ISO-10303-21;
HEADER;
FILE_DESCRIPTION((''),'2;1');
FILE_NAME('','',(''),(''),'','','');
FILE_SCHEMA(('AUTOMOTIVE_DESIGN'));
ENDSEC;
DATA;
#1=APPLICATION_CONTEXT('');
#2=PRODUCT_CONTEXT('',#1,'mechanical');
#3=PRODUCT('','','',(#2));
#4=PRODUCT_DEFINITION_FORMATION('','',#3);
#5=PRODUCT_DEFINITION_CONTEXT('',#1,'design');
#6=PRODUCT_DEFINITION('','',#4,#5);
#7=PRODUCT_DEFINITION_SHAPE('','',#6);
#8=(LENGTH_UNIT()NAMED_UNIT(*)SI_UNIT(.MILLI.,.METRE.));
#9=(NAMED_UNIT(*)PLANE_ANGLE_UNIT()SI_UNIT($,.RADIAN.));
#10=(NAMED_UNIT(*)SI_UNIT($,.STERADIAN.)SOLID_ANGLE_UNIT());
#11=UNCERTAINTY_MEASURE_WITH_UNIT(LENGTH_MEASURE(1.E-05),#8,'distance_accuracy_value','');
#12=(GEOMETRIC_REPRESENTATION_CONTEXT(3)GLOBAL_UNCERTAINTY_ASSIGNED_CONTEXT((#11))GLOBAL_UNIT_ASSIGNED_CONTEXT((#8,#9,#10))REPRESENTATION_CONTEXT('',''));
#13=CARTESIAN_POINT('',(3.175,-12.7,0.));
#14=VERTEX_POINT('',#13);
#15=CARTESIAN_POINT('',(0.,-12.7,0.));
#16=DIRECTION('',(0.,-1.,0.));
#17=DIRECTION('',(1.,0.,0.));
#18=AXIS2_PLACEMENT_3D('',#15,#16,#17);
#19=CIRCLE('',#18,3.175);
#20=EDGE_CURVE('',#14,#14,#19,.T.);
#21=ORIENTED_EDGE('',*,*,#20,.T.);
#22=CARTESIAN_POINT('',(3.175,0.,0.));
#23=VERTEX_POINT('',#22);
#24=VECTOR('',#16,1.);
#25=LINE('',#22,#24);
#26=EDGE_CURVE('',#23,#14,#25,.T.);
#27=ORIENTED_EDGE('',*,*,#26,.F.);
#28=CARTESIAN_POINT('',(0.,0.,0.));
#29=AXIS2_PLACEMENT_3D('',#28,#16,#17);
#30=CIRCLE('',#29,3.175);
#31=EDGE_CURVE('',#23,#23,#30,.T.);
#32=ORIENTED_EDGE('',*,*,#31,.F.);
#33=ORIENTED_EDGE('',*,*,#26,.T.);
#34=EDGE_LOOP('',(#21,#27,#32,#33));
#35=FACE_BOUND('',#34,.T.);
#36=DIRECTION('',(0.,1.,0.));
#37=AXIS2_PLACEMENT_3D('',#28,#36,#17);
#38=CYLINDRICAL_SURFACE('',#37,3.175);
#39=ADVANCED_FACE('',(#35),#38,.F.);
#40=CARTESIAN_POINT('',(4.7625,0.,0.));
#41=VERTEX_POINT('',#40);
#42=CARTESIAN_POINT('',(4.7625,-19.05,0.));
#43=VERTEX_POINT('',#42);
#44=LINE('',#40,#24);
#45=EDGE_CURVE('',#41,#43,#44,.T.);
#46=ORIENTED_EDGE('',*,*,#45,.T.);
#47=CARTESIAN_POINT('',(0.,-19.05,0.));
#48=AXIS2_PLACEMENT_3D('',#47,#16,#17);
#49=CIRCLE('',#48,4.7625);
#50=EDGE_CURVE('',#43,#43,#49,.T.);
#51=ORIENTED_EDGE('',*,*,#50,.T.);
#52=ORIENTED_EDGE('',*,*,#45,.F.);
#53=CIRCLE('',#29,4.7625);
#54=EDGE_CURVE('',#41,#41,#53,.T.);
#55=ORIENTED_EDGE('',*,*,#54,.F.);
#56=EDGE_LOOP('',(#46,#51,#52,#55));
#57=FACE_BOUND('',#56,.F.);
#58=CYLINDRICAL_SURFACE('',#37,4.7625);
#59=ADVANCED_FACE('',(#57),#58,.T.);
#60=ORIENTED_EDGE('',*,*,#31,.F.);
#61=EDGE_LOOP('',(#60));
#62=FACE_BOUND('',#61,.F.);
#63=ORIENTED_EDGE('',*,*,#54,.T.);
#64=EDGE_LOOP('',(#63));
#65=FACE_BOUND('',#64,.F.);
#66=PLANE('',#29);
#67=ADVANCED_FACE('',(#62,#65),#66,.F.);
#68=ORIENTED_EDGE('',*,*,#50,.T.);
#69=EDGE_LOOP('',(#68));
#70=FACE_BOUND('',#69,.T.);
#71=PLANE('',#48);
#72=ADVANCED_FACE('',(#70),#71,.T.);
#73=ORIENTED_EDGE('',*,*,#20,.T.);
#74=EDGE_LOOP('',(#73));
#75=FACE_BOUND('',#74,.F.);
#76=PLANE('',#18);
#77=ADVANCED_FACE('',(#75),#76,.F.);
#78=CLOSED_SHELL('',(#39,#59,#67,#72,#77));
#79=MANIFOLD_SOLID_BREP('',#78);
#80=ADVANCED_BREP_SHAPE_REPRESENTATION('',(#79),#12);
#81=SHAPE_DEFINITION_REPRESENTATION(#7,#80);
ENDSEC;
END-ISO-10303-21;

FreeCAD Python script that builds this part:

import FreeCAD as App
import Part
import Sketcher
from FreeCAD import Vector
Q = App.Units.Quantity

doc = App.newDocument("Part")
params = doc.addObject("Spreadsheet::Sheet", "Params")
for row, (alias, value) in enumerate([
    ("sketch1_diameter", "0.375 in"),
    ("pad1_length", "0.75 in"),
    ("sketch2_diameter", "0.25 in"),
    ("pocket1_length", "0.5 in"),
], start=1):
    params.set(f"A{row}", alias)
    params.set(f"B{row}", "=" + value)
    params.setAlias(f"B{row}", alias)

body = doc.addObject("PartDesign::Body", "Body")

# Sketch on XZ plane
sketch1 = body.newObject("Sketcher::SketchObject", "Sketch")
sketch1.AttachmentSupport = (doc.getObject("XZ_Plane"), [""])
sketch1.MapMode = "FlatFace"
sketch1.addGeometry(Part.Circle(Vector(0, 0, 0), Vector(0, 0, 1), 4.8), False)
sketch1.addConstraint([
    Sketcher.Constraint("Coincident", 0, 3, -1, 1),
    Sketcher.Constraint("Diameter", 0, Q("0.375 in")),
])
sketch1.setExpression("Constraints[1]", "Params.sketch1_diameter")
pad1 = body.newObject("PartDesign::Pad", "Pad")
pad1.Profile = sketch1
pad1.setExpression("Length", "Params.pad1_length")

# Sketch on XZ plane
sketch2 = body.newObject("Sketcher::SketchObject", "Sketch001")
sketch2.AttachmentSupport = (doc.getObject("XZ_Plane"), [""])
sketch2.MapMode = "FlatFace"
sketch2.addGeometry(Part.Circle(Vector(0, 0, 0), Vector(0, 0, 1), 3.2), False)
sketch2.addConstraint([
    Sketcher.Constraint("Coincident", 0, 3, -1, 1),
    Sketcher.Constraint("Diameter", 0, Q("0.25 in")),
])
sketch2.setExpression("Constraints[1]", "Params.sketch2_diameter")
pocket1 = body.newObject("PartDesign::Pocket", "Pocket")
pocket1.Profile = sketch2
pocket1.setExpression("Length", "Params.pocket1_length")
pocket1.Reversed = True

doc.recompute()
